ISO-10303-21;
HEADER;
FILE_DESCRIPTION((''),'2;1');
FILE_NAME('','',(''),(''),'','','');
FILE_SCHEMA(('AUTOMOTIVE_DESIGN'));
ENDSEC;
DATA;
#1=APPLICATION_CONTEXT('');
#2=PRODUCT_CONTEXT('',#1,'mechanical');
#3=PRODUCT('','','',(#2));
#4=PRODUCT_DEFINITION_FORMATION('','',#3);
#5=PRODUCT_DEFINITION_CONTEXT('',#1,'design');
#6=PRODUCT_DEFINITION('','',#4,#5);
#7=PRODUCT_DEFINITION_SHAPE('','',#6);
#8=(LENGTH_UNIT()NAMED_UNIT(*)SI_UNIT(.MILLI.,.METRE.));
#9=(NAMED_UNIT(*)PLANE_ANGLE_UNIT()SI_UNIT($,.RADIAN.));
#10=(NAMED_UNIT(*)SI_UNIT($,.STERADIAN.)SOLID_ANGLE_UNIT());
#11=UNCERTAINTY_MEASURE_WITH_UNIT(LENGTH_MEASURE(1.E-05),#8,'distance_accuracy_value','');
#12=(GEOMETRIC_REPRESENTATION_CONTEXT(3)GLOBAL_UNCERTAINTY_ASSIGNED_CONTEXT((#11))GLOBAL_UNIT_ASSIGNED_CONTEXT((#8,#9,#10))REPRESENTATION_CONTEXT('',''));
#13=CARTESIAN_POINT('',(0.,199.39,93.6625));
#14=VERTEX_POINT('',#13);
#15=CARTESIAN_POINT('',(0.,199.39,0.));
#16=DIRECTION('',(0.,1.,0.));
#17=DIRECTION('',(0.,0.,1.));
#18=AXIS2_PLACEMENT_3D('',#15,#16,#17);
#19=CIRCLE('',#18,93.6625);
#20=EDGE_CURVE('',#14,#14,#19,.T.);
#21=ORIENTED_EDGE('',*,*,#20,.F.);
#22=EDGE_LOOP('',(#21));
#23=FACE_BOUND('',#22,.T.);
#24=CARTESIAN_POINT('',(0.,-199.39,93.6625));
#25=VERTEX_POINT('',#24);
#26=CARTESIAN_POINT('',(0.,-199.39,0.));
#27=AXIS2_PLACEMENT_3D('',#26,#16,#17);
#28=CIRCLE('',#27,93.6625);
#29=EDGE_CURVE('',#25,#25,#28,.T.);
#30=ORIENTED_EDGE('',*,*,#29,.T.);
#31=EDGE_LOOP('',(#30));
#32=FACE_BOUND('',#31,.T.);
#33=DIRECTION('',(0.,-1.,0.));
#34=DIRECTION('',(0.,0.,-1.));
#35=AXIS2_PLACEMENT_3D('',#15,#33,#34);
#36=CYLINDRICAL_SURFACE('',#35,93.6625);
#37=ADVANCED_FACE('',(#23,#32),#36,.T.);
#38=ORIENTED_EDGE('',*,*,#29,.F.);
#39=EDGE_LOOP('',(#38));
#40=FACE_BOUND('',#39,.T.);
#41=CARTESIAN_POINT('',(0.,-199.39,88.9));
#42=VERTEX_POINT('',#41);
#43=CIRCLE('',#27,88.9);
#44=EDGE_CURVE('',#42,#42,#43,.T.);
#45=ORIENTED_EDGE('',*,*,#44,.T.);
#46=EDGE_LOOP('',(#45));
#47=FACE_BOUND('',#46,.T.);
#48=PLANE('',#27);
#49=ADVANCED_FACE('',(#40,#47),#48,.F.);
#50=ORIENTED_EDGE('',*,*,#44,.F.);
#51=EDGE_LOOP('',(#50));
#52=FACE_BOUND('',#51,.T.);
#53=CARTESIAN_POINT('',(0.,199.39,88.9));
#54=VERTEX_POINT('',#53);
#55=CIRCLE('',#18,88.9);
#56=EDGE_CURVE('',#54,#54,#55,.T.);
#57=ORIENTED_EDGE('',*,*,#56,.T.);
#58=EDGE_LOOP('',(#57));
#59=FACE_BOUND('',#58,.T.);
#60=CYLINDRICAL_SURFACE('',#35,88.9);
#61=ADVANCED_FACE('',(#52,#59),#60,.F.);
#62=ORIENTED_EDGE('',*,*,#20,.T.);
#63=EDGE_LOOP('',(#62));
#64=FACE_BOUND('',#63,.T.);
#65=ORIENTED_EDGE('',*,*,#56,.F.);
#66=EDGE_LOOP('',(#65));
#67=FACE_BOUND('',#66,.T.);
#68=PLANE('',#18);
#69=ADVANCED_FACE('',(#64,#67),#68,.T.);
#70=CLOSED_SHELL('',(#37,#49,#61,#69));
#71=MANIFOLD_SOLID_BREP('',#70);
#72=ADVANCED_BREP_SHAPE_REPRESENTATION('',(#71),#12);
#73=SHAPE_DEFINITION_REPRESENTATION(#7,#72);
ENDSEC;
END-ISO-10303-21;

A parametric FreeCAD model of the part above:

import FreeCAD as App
import Part
import Sketcher
Q = App.Units.Quantity

doc = App.newDocument("Part")
body = doc.addObject("PartDesign::Body", "Body")

# Sketch on XZ plane
sketch1 = body.newObject("Sketcher::SketchObject", "Sketch")
sketch1.AttachmentSupport = (doc.getObject("XZ_Plane"), [""])
sketch1.MapMode = "FlatFace"
sketch1.addGeometry(Part.Circle(App.Vector(0, 0, 0), App.Vector(0, 0, 1), 94), False)
sketch1.addGeometry(Part.Circle(App.Vector(0, 0, 0), App.Vector(0, 0, 1), 89), False)
sketch1.addConstraint(Sketcher.Constraint("Coincident", 0, 3, -1, 1))
sketch1.addConstraint(Sketcher.Constraint("Coincident", 1, 3, -1, 1))
sketch1.addConstraint(Sketcher.Constraint("Diameter", 1, Q("7 in")))
sketch1.addConstraint(Sketcher.Constraint("Diameter", 0, Q("7.375 in")))
pad1 = body.newObject("PartDesign::Pad", "Pad")
pad1.Profile = sketch1
pad1.Length = Q("15.7 in")
pad1.Midplane = True

doc.recompute()
